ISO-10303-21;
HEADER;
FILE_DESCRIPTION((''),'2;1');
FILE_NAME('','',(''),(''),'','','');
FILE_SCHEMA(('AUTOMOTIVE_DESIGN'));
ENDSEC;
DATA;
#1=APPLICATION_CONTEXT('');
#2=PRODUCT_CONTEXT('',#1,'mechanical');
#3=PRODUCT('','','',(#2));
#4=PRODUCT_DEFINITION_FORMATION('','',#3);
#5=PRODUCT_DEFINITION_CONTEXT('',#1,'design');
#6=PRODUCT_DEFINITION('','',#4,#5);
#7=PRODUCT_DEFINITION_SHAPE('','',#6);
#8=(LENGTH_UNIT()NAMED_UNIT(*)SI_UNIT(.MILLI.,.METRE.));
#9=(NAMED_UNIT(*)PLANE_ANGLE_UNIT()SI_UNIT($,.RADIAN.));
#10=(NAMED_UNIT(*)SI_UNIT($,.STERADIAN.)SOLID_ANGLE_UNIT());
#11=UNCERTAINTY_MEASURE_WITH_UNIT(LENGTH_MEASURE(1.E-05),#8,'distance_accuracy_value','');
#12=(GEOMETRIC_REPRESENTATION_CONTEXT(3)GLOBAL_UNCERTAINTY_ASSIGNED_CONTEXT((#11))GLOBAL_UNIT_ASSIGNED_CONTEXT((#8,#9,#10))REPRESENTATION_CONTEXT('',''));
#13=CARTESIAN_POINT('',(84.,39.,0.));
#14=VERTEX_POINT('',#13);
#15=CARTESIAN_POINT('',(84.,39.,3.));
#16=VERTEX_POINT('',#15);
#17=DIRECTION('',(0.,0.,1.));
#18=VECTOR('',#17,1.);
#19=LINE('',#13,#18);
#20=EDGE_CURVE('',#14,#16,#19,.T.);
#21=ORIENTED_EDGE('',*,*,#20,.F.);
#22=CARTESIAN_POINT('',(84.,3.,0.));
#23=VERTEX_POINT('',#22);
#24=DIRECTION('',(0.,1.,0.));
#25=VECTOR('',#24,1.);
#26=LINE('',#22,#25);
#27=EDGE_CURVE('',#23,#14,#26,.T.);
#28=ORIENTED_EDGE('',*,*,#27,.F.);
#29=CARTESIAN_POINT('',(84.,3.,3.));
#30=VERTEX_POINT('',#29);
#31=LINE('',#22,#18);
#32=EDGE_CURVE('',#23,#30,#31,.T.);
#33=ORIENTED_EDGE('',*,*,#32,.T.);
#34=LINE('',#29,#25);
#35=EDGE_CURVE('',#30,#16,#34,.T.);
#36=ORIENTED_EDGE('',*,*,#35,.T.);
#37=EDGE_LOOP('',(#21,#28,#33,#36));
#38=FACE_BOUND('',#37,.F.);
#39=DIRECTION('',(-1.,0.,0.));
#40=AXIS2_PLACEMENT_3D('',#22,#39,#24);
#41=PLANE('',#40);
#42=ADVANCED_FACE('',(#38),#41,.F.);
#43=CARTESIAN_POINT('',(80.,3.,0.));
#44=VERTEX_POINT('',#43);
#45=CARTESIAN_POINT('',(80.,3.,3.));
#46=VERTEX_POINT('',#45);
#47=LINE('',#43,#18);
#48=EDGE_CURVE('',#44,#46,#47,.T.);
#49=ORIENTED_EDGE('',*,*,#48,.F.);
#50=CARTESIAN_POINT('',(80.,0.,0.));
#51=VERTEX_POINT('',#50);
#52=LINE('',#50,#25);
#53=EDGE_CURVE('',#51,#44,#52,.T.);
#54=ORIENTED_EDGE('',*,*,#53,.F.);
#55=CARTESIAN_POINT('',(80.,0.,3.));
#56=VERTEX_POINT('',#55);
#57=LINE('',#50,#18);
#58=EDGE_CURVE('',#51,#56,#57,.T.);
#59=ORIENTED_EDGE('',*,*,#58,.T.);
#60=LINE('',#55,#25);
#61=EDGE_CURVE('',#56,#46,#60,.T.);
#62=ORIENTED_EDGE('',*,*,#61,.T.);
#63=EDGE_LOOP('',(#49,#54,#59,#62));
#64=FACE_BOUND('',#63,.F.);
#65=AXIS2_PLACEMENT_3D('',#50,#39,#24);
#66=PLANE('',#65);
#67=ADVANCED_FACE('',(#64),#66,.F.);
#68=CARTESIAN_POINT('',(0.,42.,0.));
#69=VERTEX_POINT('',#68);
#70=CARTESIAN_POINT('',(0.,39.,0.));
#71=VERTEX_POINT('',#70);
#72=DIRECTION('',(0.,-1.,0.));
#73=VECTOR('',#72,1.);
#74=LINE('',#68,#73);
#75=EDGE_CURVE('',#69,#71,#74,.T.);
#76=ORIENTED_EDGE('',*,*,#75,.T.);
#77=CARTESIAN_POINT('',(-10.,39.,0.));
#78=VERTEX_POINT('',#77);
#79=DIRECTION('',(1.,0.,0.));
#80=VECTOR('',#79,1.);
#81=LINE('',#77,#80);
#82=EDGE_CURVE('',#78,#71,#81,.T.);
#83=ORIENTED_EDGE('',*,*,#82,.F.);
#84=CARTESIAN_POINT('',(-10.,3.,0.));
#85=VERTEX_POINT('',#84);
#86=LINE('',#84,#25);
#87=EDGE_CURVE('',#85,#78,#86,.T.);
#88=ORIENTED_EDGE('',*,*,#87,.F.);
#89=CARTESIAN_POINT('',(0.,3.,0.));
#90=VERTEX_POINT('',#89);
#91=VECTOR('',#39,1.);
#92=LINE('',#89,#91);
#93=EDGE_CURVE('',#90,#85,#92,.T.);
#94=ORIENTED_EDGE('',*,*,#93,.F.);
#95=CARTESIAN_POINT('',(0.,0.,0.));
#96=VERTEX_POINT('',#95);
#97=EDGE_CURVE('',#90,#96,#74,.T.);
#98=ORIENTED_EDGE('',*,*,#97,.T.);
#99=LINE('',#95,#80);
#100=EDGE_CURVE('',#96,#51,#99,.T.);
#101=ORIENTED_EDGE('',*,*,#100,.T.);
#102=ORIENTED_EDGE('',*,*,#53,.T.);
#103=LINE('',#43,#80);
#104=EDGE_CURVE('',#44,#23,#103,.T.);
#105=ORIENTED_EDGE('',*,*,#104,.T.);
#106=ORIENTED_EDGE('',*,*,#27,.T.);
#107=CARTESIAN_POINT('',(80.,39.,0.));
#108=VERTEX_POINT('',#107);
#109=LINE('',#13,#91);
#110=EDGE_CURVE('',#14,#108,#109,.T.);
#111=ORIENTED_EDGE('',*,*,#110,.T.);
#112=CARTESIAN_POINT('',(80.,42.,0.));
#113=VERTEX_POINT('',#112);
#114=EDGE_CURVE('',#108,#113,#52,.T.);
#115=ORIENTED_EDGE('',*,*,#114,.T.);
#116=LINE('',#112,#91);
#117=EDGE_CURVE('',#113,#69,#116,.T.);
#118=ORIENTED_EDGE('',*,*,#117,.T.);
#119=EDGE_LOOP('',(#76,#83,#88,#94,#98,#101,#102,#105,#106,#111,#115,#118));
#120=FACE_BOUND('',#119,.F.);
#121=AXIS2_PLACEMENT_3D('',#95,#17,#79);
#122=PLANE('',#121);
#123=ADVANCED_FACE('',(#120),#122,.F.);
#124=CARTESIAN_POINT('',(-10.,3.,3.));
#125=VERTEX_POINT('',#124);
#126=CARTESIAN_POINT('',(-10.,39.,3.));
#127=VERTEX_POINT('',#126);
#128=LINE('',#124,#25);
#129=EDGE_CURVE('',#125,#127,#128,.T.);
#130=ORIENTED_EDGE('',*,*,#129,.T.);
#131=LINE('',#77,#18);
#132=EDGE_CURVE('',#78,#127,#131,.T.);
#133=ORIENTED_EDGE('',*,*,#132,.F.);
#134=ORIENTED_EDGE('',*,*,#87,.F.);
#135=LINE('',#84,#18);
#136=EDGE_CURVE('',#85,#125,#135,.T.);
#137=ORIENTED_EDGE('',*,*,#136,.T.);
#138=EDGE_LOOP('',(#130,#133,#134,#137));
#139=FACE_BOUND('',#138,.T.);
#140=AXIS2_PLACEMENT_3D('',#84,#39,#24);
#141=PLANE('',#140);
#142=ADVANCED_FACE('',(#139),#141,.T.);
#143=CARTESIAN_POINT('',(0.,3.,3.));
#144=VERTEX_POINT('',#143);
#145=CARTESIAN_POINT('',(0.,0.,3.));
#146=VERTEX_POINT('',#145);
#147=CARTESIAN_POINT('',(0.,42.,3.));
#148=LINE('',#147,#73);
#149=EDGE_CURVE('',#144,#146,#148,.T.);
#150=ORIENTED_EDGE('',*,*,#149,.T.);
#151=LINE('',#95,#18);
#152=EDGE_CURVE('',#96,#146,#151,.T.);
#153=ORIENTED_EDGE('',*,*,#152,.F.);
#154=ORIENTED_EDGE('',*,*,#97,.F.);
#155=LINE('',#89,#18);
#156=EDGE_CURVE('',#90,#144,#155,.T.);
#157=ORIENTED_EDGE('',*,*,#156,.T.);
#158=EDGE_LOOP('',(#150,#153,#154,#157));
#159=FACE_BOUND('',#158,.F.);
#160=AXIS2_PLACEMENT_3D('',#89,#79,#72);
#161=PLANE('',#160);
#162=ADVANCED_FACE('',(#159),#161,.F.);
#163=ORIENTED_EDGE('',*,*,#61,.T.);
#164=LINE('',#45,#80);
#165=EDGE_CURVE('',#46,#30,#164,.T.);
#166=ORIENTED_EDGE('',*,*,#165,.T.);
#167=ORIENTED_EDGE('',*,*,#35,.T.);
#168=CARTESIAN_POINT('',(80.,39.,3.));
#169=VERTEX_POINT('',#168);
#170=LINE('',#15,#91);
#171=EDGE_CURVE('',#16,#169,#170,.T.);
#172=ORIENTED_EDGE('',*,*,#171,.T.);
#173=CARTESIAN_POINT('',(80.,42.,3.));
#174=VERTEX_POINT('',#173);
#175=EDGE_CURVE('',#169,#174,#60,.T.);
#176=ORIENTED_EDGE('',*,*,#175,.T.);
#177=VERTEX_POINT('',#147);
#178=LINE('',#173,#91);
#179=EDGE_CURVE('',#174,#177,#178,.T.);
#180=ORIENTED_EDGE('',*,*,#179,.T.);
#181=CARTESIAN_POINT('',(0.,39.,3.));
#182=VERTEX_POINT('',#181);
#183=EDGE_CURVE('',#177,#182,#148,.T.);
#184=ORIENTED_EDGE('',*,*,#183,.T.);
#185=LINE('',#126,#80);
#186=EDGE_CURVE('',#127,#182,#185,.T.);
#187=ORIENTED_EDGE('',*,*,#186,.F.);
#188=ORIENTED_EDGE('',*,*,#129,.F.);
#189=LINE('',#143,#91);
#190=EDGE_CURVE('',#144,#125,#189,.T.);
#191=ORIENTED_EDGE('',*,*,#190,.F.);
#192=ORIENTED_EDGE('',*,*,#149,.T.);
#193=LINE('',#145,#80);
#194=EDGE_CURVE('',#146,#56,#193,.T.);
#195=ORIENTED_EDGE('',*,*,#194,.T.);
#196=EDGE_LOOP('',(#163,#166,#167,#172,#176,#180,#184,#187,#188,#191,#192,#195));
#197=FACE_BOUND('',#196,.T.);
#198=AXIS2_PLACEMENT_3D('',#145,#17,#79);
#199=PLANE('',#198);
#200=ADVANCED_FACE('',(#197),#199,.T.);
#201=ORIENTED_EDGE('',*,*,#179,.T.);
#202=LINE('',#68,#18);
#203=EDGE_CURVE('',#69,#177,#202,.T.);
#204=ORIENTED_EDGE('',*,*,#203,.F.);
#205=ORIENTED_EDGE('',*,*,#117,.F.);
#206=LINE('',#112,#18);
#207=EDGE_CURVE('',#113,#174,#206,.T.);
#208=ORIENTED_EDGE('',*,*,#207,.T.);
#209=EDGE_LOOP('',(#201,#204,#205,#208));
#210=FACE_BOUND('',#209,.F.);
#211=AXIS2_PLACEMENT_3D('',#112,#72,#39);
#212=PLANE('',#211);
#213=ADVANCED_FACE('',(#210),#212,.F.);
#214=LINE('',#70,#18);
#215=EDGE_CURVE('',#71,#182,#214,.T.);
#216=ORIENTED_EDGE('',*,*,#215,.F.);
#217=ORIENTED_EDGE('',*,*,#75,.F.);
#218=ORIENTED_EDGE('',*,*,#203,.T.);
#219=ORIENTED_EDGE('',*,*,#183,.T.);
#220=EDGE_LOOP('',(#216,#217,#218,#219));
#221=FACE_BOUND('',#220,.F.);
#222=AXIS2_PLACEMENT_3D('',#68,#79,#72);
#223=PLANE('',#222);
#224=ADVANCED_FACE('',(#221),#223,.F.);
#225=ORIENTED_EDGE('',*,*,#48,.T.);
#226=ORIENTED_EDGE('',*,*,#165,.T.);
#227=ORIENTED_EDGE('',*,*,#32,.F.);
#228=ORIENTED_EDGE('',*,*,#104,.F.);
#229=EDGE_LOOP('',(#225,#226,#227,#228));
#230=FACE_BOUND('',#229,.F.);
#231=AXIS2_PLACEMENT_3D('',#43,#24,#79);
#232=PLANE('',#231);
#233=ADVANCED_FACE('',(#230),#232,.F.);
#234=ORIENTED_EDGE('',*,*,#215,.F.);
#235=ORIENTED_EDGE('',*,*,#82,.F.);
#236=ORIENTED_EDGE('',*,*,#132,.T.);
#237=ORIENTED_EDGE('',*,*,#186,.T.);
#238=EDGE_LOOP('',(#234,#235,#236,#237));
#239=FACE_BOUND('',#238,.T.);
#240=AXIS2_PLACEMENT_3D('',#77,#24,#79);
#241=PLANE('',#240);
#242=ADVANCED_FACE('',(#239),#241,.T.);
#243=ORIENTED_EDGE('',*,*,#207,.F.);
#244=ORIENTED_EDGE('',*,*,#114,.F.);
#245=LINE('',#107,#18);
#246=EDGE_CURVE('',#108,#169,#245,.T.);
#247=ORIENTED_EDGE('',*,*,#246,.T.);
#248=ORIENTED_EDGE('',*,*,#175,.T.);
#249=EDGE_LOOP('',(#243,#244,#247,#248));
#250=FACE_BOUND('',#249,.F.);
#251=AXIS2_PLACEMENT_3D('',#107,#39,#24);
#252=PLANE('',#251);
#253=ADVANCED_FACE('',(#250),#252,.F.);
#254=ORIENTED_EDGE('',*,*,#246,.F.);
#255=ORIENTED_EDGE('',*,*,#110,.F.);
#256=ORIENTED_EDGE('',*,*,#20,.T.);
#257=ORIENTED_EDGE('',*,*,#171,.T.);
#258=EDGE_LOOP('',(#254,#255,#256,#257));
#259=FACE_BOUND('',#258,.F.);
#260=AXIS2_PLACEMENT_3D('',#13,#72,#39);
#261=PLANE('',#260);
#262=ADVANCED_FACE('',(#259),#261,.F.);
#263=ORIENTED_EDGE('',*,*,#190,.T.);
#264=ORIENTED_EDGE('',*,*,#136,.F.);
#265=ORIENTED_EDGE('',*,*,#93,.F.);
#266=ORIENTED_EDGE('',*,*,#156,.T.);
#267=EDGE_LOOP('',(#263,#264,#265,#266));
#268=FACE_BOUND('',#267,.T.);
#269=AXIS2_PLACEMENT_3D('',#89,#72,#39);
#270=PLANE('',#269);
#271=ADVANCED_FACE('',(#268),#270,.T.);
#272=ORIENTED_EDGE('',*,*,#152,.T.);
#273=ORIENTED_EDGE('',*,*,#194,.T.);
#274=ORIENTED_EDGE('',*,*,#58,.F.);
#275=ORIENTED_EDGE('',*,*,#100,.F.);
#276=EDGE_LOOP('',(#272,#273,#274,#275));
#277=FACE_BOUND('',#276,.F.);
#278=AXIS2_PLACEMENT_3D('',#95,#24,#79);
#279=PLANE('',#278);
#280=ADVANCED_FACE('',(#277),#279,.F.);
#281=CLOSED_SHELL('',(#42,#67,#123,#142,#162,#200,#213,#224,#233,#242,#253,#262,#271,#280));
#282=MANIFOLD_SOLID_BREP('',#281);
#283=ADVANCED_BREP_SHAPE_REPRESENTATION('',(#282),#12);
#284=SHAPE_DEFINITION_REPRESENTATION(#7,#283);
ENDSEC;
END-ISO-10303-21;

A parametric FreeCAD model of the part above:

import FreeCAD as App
import Part
import Sketcher

V = App.Vector
Q = App.Units.Quantity

doc = App.newDocument("Part")
body = doc.addObject("PartDesign::Body", "Body")

# Sketch on XY plane
sketch1 = body.newObject("Sketcher::SketchObject", "Sketch")
sketch1.AttachmentSupport = (doc.getObject("XY_Plane"), [""])
sketch1.MapMode = "FlatFace"
sketch1.addGeometry(Part.LineSegment(V(0, 3, 0), V(0, 0, 0)), False)
sketch1.addGeometry(Part.LineSegment(V(0, 0, 0), V(80, 0, 0)), False)
sketch1.addGeometry(Part.LineSegment(V(80, 0, 0), V(80, 3, 0)), False)
sketch1.addGeometry(Part.LineSegment(V(80, 3, 0), V(84, 3, 0)), False)
sketch1.addGeometry(Part.LineSegment(V(84, 3, 0), V(84, 39, 0)), False)
sketch1.addGeometry(Part.LineSegment(V(84, 39, 0), V(80, 39, 0)), False)
sketch1.addGeometry(Part.LineSegment(V(80, 39, 0), V(80, 42, 0)), False)
sketch1.addGeometry(Part.LineSegment(V(80, 42, 0), V(0, 42, 0)), False)
sketch1.addGeometry(Part.LineSegment(V(0, 42, 0), V(0, 39, 0)), False)
sketch1.addGeometry(Part.LineSegment(V(0, 39, 0), V(-10, 39, 0)), False)
sketch1.addGeometry(Part.LineSegment(V(-10, 39, 0), V(-10, 3, 0)), False)
sketch1.addGeometry(Part.LineSegment(V(-10, 3, 0), V(0, 3, 0)), False)
sketch1.addConstraint(Sketcher.Constraint("Coincident", 0, 2, 1, 1))
sketch1.addConstraint(Sketcher.Constraint("Coincident", 1, 2, 2, 1))
sketch1.addConstraint(Sketcher.Constraint("Coincident", 2, 2, 3, 1))
sketch1.addConstraint(Sketcher.Constraint("Coincident", 3, 2, 4, 1))
sketch1.addConstraint(Sketcher.Constraint("Coincident", 4, 2, 5, 1))
sketch1.addConstraint(Sketcher.Constraint("Coincident", 5, 2, 6, 1))
sketch1.addConstraint(Sketcher.Constraint("Coincident", 6, 2, 7, 1))
sketch1.addConstraint(Sketcher.Constraint("Coincident", 7, 2, 8, 1))
sketch1.addConstraint(Sketcher.Constraint("Coincident", 8, 2, 9, 1))
sketch1.addConstraint(Sketcher.Constraint("Coincident", 9, 2, 10, 1))
sketch1.addConstraint(Sketcher.Constraint("Coincident", 10, 2, 11, 1))
sketch1.addConstraint(Sketcher.Constraint("Coincident", 11, 2, 0, 1))
sketch1.addConstraint(Sketcher.Constraint("Vertical", 0))
sketch1.addConstraint(Sketcher.Constraint("Horizontal", 1))
sketch1.addConstraint(Sketcher.Constraint("Vertical", 2))
sketch1.addConstraint(Sketcher.Constraint("Horizontal", 3))
sketch1.addConstraint(Sketcher.Constraint("Vertical", 4))
sketch1.addConstraint(Sketcher.Constraint("Horizontal", 5))
sketch1.addConstraint(Sketcher.Constraint("Vertical", 6))
sketch1.addConstraint(Sketcher.Constraint("Horizontal", 7))
sketch1.addConstraint(Sketcher.Constraint("Vertical", 8))
sketch1.addConstraint(Sketcher.Constraint("Horizontal", 9))
sketch1.addConstraint(Sketcher.Constraint("Vertical", 10))
sketch1.addConstraint(Sketcher.Constraint("Horizontal", 11))
sketch1.addConstraint(Sketcher.Constraint("Coincident", 0, 2, -1, 1))
sketch1.addConstraint(Sketcher.Constraint("PointOnObject", 7, 2, -2))
sketch1.addConstraint(Sketcher.Constraint("Horizontal", 5, 2, 8, 2))
sketch1.addConstraint(Sketcher.Constraint("Horizontal", 3, 2, 10, 2))
sketch1.addConstraint(Sketcher.Constraint("Vertical", 2, 2, 5, 2))
sketch1.addConstraint(Sketcher.Constraint("Equal", 2, 6))
sketch1.addConstraint(Sketcher.Constraint("DistanceX", 1, 1, 1, 2, Q("80 mm")))
sketch1.addConstraint(Sketcher.Constraint("DistanceX", 3, 1, 3, 2, Q("4 mm")))
sketch1.addConstraint(Sketcher.Constraint("DistanceX", 9, 2, 9, 1, Q("10 mm")))
sketch1.addConstraint(Sketcher.Constraint("DistanceY", 4, 1, 4, 2, Q("36 mm")))
sketch1.addConstraint(Sketcher.Constraint("DistanceY", -1, 1, 6, 2, Q("42 mm")))
pad1 = body.newObject("PartDesign::Pad", "Pad")
pad1.Profile = sketch1
pad1.Length = 3

doc.recompute()
